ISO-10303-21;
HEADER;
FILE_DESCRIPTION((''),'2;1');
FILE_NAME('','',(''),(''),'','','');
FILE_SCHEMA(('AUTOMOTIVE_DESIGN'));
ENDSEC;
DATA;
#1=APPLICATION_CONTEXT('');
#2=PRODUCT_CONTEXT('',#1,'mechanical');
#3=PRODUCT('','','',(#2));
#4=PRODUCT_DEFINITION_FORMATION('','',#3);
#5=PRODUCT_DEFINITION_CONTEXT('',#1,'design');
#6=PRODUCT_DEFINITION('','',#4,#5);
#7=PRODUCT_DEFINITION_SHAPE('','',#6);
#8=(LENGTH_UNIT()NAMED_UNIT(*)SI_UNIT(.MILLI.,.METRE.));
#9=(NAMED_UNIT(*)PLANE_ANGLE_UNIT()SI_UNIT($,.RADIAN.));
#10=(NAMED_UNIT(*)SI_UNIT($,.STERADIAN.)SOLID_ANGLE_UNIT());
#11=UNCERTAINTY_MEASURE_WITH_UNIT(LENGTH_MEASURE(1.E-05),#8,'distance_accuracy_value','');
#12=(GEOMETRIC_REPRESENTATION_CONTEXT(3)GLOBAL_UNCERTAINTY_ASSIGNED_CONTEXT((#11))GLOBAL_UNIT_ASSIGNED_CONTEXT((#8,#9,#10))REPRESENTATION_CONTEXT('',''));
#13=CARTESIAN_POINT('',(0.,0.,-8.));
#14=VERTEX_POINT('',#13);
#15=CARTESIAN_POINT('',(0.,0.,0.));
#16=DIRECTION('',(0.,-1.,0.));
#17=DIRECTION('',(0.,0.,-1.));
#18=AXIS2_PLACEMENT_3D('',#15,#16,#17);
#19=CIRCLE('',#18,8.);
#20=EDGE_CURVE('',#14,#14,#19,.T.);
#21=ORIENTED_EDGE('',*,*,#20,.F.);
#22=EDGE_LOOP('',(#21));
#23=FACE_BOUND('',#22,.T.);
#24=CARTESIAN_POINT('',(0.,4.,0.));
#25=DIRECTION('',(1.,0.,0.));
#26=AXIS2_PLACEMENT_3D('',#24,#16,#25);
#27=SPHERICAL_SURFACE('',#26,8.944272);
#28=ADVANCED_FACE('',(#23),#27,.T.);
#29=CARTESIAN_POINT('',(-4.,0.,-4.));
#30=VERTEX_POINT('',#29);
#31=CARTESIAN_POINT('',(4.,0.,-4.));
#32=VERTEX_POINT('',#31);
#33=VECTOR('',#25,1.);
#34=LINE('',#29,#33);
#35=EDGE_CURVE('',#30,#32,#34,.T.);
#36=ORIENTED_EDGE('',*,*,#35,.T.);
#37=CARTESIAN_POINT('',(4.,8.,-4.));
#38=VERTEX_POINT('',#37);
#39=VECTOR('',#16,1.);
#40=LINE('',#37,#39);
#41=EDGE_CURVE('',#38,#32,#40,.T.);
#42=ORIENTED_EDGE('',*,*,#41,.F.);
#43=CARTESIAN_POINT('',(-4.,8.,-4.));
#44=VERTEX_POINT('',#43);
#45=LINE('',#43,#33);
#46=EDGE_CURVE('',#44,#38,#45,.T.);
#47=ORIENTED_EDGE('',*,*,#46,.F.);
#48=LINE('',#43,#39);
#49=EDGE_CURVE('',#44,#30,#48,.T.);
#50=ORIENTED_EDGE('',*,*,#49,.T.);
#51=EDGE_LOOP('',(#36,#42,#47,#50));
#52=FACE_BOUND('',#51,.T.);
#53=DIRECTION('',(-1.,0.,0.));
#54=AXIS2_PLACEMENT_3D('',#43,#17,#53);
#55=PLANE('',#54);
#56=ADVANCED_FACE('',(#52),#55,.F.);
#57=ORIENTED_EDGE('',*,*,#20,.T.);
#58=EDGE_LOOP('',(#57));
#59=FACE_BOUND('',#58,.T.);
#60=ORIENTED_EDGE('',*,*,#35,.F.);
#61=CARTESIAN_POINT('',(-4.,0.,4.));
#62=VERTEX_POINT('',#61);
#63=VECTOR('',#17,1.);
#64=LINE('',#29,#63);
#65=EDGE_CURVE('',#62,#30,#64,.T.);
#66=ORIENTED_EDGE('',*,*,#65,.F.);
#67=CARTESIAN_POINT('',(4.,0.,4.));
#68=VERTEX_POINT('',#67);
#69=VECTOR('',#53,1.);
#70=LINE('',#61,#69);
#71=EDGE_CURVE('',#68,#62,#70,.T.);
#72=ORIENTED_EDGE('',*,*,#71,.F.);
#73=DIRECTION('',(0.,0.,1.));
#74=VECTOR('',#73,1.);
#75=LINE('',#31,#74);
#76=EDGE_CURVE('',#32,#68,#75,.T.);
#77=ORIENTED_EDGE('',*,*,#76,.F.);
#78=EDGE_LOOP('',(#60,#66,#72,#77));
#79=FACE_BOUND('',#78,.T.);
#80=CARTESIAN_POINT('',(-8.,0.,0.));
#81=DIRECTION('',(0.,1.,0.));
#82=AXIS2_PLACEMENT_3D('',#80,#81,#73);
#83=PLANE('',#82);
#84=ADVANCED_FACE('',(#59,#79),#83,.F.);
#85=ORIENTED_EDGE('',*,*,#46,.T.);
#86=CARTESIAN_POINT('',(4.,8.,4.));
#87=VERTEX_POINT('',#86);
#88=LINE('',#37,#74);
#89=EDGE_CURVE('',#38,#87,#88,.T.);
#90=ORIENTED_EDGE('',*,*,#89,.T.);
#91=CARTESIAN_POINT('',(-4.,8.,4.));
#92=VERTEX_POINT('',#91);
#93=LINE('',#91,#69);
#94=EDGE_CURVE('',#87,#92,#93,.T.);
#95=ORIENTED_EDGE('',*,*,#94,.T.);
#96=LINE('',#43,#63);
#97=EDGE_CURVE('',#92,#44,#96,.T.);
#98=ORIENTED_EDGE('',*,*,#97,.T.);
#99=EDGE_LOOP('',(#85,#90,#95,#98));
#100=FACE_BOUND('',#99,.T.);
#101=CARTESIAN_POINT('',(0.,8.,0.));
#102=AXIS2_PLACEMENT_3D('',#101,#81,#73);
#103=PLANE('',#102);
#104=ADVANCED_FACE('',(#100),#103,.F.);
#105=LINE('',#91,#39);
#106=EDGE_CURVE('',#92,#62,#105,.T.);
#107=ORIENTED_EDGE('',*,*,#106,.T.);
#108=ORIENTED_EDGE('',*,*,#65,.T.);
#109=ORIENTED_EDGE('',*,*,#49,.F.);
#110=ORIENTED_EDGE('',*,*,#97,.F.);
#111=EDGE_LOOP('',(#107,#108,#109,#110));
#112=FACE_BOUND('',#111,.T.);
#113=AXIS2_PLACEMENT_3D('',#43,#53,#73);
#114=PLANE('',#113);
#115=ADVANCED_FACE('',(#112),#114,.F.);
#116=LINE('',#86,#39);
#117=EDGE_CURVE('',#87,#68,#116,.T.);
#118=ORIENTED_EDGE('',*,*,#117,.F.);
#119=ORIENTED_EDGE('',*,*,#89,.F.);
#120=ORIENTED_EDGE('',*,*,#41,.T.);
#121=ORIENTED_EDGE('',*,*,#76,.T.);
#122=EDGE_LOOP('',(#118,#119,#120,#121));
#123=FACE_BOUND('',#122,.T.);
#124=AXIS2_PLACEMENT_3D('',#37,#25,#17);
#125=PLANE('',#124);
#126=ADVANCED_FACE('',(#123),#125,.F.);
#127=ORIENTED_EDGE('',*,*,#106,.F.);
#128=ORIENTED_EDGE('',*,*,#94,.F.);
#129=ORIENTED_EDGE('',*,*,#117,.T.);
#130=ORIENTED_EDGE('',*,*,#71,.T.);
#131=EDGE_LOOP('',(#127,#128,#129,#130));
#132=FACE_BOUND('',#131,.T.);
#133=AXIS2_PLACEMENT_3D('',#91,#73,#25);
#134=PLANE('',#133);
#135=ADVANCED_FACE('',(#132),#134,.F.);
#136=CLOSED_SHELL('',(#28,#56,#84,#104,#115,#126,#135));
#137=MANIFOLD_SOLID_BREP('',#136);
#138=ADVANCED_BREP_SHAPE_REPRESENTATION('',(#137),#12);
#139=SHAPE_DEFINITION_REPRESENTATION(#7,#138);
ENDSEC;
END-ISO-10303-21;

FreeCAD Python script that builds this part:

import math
import FreeCAD as App
import Part
import Sketcher
from FreeCAD import Vector

doc = App.newDocument("Part")
params = doc.addObject("Spreadsheet::Sheet", "Params")
for row, (alias, value) in enumerate([
    ("sketch1_width", "8 mm"),
    ("revolution_angle", "360 deg"),
    ("sketch2_width", "8 mm"),
    ("pocket1_length", "8 mm"),
], start=1):
    params.set(f"A{row}", alias)
    params.set(f"B{row}", "=" + value)
    params.setAlias(f"B{row}", alias)

body = doc.addObject("PartDesign::Body", "Body")

# Sketch on XY plane
sketch1 = body.newObject("Sketcher::SketchObject", "Sketch")
sketch1.AttachmentSupport = (doc.getObject("XY_Plane"), [""])
sketch1.MapMode = "FlatFace"
sketch1.addGeometry([
    Part.LineSegment(Vector(-8, 0, 0), Vector(0, 0, 0)),
    Part.LineSegment(Vector(0, 0, 0), Vector(0, 13, 0)),
    Part.ArcOfCircle(Part.Circle(Vector(0, 4, 0), Vector(0, 0, 1), 9), math.radians(90), math.radians(207)),
], False)
sketch1.addConstraint([
    Sketcher.Constraint("Coincident", 0, 2, 1, 1),
    Sketcher.Constraint("Coincident", 1, 2, 2, 1),
    Sketcher.Constraint("Coincident", 2, 2, 0, 1),
    Sketcher.Constraint("Horizontal", 0),
    Sketcher.Constraint("Vertical", 1),
    Sketcher.Constraint("Coincident", 0, 2, -1, 1),
    Sketcher.Constraint("PointOnObject", 2, 3, -2),
    Sketcher.Constraint("DistanceX", 0, 1, 0, 2, 8.0),
    Sketcher.Constraint("DistanceY", -1, 1, 2, 3, 4.0),
])
sketch1.setExpression("Constraints[7]", "Params.sketch1_width")
revolution = body.newObject("PartDesign::Revolution", "Revolution")
revolution.Profile = sketch1
revolution.ReferenceAxis = (sketch1, ["V_Axis"])
revolution.setExpression("Angle", "Params.revolution_angle")

# Sketch on XZ plane
sketch2 = body.newObject("Sketcher::SketchObject", "Sketch001")
sketch2.AttachmentSupport = (doc.getObject("XZ_Plane"), [""])
sketch2.MapMode = "FlatFace"
sketch2.addGeometry([
    Part.LineSegment(Vector(-4, 4, 0), Vector(-4, -4, 0)),
    Part.LineSegment(Vector(-4, -4, 0), Vector(4, -4, 0)),
    Part.LineSegment(Vector(4, -4, 0), Vector(4, 4, 0)),
    Part.LineSegment(Vector(4, 4, 0), Vector(-4, 4, 0)),
], False)
sketch2.addConstraint([
    Sketcher.Constraint("Coincident", 0, 2, 1, 1),
    Sketcher.Constraint("Coincident", 1, 2, 2, 1),
    Sketcher.Constraint("Coincident", 2, 2, 3, 1),
    Sketcher.Constraint("Coincident", 3, 2, 0, 1),
    Sketcher.Constraint("Vertical", 0),
    Sketcher.Constraint("Horizontal", 1),
    Sketcher.Constraint("Vertical", 2),
    Sketcher.Constraint("Horizontal", 3),
    Sketcher.Constraint("Symmetric", 0, 2, 2, 2, -1, 1),
    Sketcher.Constraint("Equal", 3, 0),
    Sketcher.Constraint("DistanceX", 1, 1, 1, 2, 8.0),
])
sketch2.setExpression("Constraints[10]", "Params.sketch2_width")
pocket1 = body.newObject("PartDesign::Pocket", "Pocket")
pocket1.Profile = sketch2
pocket1.setExpression("Length", "Params.pocket1_length")

doc.recompute()
